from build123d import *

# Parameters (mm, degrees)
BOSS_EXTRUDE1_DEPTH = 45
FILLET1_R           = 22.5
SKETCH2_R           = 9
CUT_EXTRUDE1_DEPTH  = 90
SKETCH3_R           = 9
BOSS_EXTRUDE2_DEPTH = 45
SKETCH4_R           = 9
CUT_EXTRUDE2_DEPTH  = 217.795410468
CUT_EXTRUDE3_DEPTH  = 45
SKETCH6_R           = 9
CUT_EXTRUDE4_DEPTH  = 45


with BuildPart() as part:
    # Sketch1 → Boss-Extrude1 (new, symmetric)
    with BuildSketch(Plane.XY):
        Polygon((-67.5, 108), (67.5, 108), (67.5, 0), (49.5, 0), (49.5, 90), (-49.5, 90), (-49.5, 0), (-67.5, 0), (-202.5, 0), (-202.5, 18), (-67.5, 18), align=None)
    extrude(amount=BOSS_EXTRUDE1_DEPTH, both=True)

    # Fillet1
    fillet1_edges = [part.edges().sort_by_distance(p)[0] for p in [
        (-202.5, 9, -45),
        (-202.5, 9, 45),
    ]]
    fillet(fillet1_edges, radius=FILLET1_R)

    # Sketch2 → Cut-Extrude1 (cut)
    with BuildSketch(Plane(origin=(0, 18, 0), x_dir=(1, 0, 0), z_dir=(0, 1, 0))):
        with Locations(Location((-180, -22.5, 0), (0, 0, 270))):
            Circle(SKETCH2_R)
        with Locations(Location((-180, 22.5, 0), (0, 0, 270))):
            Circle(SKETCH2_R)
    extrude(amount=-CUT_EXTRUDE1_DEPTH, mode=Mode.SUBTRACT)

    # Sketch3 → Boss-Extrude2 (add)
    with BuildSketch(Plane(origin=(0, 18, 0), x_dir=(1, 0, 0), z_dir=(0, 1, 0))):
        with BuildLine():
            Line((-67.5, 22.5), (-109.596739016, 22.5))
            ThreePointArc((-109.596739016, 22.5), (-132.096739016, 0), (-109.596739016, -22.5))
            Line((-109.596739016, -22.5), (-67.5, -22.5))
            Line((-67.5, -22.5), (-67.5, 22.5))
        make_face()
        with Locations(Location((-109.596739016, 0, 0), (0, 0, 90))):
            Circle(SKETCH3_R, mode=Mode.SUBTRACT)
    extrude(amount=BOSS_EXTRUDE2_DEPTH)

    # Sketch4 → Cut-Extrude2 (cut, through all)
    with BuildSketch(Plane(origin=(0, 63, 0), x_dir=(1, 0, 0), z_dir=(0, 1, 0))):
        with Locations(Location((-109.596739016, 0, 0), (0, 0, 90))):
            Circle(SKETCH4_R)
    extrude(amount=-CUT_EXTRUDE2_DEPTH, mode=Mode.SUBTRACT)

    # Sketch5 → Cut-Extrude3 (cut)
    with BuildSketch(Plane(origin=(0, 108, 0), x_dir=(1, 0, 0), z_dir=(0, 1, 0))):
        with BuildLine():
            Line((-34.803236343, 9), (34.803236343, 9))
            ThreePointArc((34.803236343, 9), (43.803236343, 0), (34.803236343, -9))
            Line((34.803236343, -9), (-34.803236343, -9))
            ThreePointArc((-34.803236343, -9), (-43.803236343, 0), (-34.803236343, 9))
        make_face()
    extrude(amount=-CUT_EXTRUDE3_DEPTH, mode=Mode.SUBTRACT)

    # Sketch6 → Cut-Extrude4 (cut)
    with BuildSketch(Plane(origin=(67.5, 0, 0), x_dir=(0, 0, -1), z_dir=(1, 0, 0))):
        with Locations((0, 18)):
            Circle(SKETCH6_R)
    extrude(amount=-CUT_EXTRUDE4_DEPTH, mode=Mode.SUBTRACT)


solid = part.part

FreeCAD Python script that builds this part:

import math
import FreeCAD as App
import Part
import Sketcher

V = App.Vector
Q = App.Units.Quantity


def edges_at(feature, points):
    """Names of the edges that pass closest to the given points."""
    edges = feature.Shape.Edges
    near = lambda p: min(range(len(edges)), key=lambda i: edges[i].distToShape(Part.Vertex(*p))[0])
    return sorted({f"Edge{near(p) + 1}" for p in points})


def add_polygon(sketch, points):
    """Adds a closed chain of lines whose ends are joined by coincident constraints."""
    first, n = sketch.GeometryCount, len(points)
    for a, b in zip(points, points[1:] + points[:1]):
        sketch.addGeometry(Part.LineSegment(App.Vector(*a, 0), App.Vector(*b, 0)), False)
    for i in range(n):
        sketch.addConstraint(Sketcher.Constraint("Coincident", first + i, 2, first + (i + 1) % n, 1))

doc = App.newDocument("Part")
body = doc.addObject("PartDesign::Body", "Body")

sketch1 = doc.addObject("Sketcher::SketchObject", "Sketch")
body.addObject(sketch1)
sketch1.AttachmentSupport = (doc.XY_Plane, [""])
sketch1.MapMode = "FlatFace"
add_polygon(sketch1, [(68, 108), (-68, 108), (-68, 18), (-202, 18), (-202, 0), (-50, 0), (-50, 90), (50, 90), (50, 0), (68, 0)])
sketch1.addConstraint([
    Sketcher.Constraint("Horizontal", 0),
    Sketcher.Constraint("Vertical", 1),
    Sketcher.Constraint("Horizontal", 2),
    Sketcher.Constraint("Vertical", 3),
    Sketcher.Constraint("Horizontal", 4),
    Sketcher.Constraint("Vertical", 5),
    Sketcher.Constraint("Horizontal", 6),
    Sketcher.Constraint("Vertical", 7),
    Sketcher.Constraint("Horizontal", 8),
    Sketcher.Constraint("Vertical", 9),
    Sketcher.Constraint("Symmetric", 4, 2, 7, 2, -1, 1),
    Sketcher.Constraint("PointOnObject", 3, 2, -1),
    Sketcher.Constraint("Equal", 0, 2),
    Sketcher.Constraint("Equal", 8, 3),
    Sketcher.Constraint("Equal", 1, 5),
    Sketcher.Constraint("DistanceX", 0, 2, 0, 1, Q("135 mm")),
    Sketcher.Constraint("DistanceX", 4, 1, 4, 2, Q("153 mm")),
    Sketcher.Constraint("DistanceX", 6, 1, 6, 2, Q("99 mm")),
    Sketcher.Constraint("DistanceY", 1, 2, 1, 1, Q("90 mm")),
])
pad1 = doc.addObject("PartDesign::Pad", "Pad")
body.addObject(pad1)
pad1.Profile = sketch1
pad1.Length = 90
pad1.Midplane = True
doc.recompute()

fillet = doc.addObject("PartDesign::Fillet", "Fillet")
body.addObject(fillet)
fillet.Base = (pad1, edges_at(pad1, [(-202.5, 9, -45), (-202.5, 9, 45)]))
fillet.Radius = 22.5

sketch2 = doc.addObject("Sketcher::SketchObject", "Sketch001")
body.addObject(sketch2)
sketch2.AttachmentSupport = (doc.XZ_Plane, [""])
sketch2.MapMode = "FlatFace"
sketch2.AttachmentOffset = App.Placement(V(0, 0, -18), App.Rotation())
sketch2.addGeometry([
    Part.Circle(V(-180, 22, 0), V(0, 0, 1), 9),
    Part.Circle(V(-180, -22, 0), V(0, 0, 1), 9),
], False)
sketch2.addConstraint([
    Sketcher.Constraint("Equal", 0, 1),
    Sketcher.Constraint("Symmetric", 0, 3, 1, 3, -1),
    Sketcher.Constraint("Diameter", 0, Q("18 mm")),
    Sketcher.Constraint("DistanceX", 0, 3, -1, 1, Q("180 mm")),
    Sketcher.Constraint("DistanceY", 1, 3, 0, 3, Q("45 mm")),
])
pocket1 = doc.addObject("PartDesign::Pocket", "Pocket")
body.addObject(pocket1)
pocket1.Profile = sketch2
pocket1.Length = 90
pocket1.Reversed = True

sketch3 = doc.addObject("Sketcher::SketchObject", "Sketch002")
body.addObject(sketch3)
sketch3.AttachmentSupport = (doc.XZ_Plane, [""])
sketch3.MapMode = "FlatFace"
sketch3.AttachmentOffset = App.Placement(V(0, 0, -18), App.Rotation())
sketch3.addGeometry([
    Part.LineSegment(V(-68, -22, 0), V(-110, -22, 0)),
    Part.ArcOfCircle(Part.Circle(V(-110, 0, 0), V(0, 0, 1), 22), math.radians(90), math.radians(270)),
    Part.LineSegment(V(-110, 22, 0), V(-68, 22, 0)),
    Part.LineSegment(V(-68, 22, 0), V(-68, -22, 0)),
    Part.Circle(V(-110, 0, 0), V(0, 0, 1), 9),
], False)
sketch3.addConstraint([
    Sketcher.Constraint("Tangent", 0, 2, 1, 2),
    Sketcher.Constraint("Tangent", 1, 1, 2, 1),
    Sketcher.Constraint("Coincident", 2, 2, 3, 1),
    Sketcher.Constraint("Coincident", 3, 2, 0, 1),
    Sketcher.Constraint("Horizontal", 0),
    Sketcher.Constraint("Horizontal", 2),
    Sketcher.Constraint("Vertical", 3),
    Sketcher.Constraint("Coincident", 4, 3, 1, 3),
    Sketcher.Constraint("PointOnObject", 1, 3, -1),
    Sketcher.Constraint("Diameter", 4, Q("18 mm")),
    Sketcher.Constraint("Radius", 1, Q("22.5 mm")),
    Sketcher.Constraint("DistanceX", 2, 2, -1, 1, Q("67.5 mm")),
    Sketcher.Constraint("DistanceX", 0, 2, 0, 1, Q("42.096739 mm")),
])
pad2 = doc.addObject("PartDesign::Pad", "Pad001")
body.addObject(pad2)
pad2.Profile = sketch3
pad2.Length = 45
pad2.Reversed = True

sketch4 = doc.addObject("Sketcher::SketchObject", "Sketch003")
body.addObject(sketch4)
sketch4.AttachmentSupport = (doc.XZ_Plane, [""])
sketch4.MapMode = "FlatFace"
sketch4.AttachmentOffset = App.Placement(V(0, 0, -63), App.Rotation())
sketch4.addGeometry(Part.Circle(V(-110, 0, 0), V(0, 0, 1), 9), False)
sketch4.addConstraint([
    Sketcher.Constraint("PointOnObject", 0, 3, -1),
    Sketcher.Constraint("Diameter", 0, Q("18 mm")),
    Sketcher.Constraint("DistanceX", 0, 3, -1, 1, Q("109.596739 mm")),
])
pocket2 = doc.addObject("PartDesign::Pocket", "Pocket001")
body.addObject(pocket2)
pocket2.Profile = sketch4
pocket2.Type = "ThroughAll"
pocket2.Reversed = True

sketch5 = doc.addObject("Sketcher::SketchObject", "Sketch004")
body.addObject(sketch5)
sketch5.AttachmentSupport = (doc.XZ_Plane, [""])
sketch5.MapMode = "FlatFace"
sketch5.AttachmentOffset = App.Placement(V(0, 0, -108), App.Rotation())
sketch5.addGeometry([
    Part.LineSegment(V(35, -9, 0), V(-35, -9, 0)),
    Part.ArcOfCircle(Part.Circle(V(-35, 0, 0), V(0, 0, 1), 9), math.radians(90), math.radians(270)),
    Part.LineSegment(V(-35, 9, 0), V(35, 9, 0)),
    Part.ArcOfCircle(Part.Circle(V(35, 0, 0), V(0, 0, 1), 9), math.radians(-90), math.radians(90)),
], False)
sketch5.addConstraint([
    Sketcher.Constraint("Tangent", 0, 2, 1, 2),
    Sketcher.Constraint("Tangent", 1, 1, 2, 1),
    Sketcher.Constraint("Tangent", 2, 2, 3, 2),
    Sketcher.Constraint("Tangent", 3, 1, 0, 1),
    Sketcher.Constraint("Horizontal", 0),
    Sketcher.Constraint("Horizontal", 2),
    Sketcher.Constraint("Symmetric", 1, 3, 3, 3, -1, 1),
    Sketcher.Constraint("Radius", 1, Q("9 mm")),
    Sketcher.Constraint("DistanceX", 0, 2, 0, 1, Q("69.606473 mm")),
])
pocket3 = doc.addObject("PartDesign::Pocket", "Pocket002")
body.addObject(pocket3)
pocket3.Profile = sketch5
pocket3.Length = 45
pocket3.Reversed = True

sketch6 = doc.addObject("Sketcher::SketchObject", "Sketch005")
body.addObject(sketch6)
sketch6.AttachmentSupport = (doc.YZ_Plane, [""])
sketch6.MapMode = "FlatFace"
sketch6.AttachmentOffset = App.Placement(V(0, 0, 67.5), App.Rotation())
sketch6.addGeometry(Part.Circle(V(18, 0, 0), V(0, 0, 1), 9), False)
sketch6.addConstraint([
    Sketcher.Constraint("PointOnObject", 0, 3, -1),
    Sketcher.Constraint("Diameter", 0, Q("18 mm")),
    Sketcher.Constraint("DistanceX", -1, 1, 0, 3, Q("18 mm")),
])
pocket4 = doc.addObject("PartDesign::Pocket", "Pocket003")
body.addObject(pocket4)
pocket4.Profile = sketch6
pocket4.Length = 45

doc.recompute()
